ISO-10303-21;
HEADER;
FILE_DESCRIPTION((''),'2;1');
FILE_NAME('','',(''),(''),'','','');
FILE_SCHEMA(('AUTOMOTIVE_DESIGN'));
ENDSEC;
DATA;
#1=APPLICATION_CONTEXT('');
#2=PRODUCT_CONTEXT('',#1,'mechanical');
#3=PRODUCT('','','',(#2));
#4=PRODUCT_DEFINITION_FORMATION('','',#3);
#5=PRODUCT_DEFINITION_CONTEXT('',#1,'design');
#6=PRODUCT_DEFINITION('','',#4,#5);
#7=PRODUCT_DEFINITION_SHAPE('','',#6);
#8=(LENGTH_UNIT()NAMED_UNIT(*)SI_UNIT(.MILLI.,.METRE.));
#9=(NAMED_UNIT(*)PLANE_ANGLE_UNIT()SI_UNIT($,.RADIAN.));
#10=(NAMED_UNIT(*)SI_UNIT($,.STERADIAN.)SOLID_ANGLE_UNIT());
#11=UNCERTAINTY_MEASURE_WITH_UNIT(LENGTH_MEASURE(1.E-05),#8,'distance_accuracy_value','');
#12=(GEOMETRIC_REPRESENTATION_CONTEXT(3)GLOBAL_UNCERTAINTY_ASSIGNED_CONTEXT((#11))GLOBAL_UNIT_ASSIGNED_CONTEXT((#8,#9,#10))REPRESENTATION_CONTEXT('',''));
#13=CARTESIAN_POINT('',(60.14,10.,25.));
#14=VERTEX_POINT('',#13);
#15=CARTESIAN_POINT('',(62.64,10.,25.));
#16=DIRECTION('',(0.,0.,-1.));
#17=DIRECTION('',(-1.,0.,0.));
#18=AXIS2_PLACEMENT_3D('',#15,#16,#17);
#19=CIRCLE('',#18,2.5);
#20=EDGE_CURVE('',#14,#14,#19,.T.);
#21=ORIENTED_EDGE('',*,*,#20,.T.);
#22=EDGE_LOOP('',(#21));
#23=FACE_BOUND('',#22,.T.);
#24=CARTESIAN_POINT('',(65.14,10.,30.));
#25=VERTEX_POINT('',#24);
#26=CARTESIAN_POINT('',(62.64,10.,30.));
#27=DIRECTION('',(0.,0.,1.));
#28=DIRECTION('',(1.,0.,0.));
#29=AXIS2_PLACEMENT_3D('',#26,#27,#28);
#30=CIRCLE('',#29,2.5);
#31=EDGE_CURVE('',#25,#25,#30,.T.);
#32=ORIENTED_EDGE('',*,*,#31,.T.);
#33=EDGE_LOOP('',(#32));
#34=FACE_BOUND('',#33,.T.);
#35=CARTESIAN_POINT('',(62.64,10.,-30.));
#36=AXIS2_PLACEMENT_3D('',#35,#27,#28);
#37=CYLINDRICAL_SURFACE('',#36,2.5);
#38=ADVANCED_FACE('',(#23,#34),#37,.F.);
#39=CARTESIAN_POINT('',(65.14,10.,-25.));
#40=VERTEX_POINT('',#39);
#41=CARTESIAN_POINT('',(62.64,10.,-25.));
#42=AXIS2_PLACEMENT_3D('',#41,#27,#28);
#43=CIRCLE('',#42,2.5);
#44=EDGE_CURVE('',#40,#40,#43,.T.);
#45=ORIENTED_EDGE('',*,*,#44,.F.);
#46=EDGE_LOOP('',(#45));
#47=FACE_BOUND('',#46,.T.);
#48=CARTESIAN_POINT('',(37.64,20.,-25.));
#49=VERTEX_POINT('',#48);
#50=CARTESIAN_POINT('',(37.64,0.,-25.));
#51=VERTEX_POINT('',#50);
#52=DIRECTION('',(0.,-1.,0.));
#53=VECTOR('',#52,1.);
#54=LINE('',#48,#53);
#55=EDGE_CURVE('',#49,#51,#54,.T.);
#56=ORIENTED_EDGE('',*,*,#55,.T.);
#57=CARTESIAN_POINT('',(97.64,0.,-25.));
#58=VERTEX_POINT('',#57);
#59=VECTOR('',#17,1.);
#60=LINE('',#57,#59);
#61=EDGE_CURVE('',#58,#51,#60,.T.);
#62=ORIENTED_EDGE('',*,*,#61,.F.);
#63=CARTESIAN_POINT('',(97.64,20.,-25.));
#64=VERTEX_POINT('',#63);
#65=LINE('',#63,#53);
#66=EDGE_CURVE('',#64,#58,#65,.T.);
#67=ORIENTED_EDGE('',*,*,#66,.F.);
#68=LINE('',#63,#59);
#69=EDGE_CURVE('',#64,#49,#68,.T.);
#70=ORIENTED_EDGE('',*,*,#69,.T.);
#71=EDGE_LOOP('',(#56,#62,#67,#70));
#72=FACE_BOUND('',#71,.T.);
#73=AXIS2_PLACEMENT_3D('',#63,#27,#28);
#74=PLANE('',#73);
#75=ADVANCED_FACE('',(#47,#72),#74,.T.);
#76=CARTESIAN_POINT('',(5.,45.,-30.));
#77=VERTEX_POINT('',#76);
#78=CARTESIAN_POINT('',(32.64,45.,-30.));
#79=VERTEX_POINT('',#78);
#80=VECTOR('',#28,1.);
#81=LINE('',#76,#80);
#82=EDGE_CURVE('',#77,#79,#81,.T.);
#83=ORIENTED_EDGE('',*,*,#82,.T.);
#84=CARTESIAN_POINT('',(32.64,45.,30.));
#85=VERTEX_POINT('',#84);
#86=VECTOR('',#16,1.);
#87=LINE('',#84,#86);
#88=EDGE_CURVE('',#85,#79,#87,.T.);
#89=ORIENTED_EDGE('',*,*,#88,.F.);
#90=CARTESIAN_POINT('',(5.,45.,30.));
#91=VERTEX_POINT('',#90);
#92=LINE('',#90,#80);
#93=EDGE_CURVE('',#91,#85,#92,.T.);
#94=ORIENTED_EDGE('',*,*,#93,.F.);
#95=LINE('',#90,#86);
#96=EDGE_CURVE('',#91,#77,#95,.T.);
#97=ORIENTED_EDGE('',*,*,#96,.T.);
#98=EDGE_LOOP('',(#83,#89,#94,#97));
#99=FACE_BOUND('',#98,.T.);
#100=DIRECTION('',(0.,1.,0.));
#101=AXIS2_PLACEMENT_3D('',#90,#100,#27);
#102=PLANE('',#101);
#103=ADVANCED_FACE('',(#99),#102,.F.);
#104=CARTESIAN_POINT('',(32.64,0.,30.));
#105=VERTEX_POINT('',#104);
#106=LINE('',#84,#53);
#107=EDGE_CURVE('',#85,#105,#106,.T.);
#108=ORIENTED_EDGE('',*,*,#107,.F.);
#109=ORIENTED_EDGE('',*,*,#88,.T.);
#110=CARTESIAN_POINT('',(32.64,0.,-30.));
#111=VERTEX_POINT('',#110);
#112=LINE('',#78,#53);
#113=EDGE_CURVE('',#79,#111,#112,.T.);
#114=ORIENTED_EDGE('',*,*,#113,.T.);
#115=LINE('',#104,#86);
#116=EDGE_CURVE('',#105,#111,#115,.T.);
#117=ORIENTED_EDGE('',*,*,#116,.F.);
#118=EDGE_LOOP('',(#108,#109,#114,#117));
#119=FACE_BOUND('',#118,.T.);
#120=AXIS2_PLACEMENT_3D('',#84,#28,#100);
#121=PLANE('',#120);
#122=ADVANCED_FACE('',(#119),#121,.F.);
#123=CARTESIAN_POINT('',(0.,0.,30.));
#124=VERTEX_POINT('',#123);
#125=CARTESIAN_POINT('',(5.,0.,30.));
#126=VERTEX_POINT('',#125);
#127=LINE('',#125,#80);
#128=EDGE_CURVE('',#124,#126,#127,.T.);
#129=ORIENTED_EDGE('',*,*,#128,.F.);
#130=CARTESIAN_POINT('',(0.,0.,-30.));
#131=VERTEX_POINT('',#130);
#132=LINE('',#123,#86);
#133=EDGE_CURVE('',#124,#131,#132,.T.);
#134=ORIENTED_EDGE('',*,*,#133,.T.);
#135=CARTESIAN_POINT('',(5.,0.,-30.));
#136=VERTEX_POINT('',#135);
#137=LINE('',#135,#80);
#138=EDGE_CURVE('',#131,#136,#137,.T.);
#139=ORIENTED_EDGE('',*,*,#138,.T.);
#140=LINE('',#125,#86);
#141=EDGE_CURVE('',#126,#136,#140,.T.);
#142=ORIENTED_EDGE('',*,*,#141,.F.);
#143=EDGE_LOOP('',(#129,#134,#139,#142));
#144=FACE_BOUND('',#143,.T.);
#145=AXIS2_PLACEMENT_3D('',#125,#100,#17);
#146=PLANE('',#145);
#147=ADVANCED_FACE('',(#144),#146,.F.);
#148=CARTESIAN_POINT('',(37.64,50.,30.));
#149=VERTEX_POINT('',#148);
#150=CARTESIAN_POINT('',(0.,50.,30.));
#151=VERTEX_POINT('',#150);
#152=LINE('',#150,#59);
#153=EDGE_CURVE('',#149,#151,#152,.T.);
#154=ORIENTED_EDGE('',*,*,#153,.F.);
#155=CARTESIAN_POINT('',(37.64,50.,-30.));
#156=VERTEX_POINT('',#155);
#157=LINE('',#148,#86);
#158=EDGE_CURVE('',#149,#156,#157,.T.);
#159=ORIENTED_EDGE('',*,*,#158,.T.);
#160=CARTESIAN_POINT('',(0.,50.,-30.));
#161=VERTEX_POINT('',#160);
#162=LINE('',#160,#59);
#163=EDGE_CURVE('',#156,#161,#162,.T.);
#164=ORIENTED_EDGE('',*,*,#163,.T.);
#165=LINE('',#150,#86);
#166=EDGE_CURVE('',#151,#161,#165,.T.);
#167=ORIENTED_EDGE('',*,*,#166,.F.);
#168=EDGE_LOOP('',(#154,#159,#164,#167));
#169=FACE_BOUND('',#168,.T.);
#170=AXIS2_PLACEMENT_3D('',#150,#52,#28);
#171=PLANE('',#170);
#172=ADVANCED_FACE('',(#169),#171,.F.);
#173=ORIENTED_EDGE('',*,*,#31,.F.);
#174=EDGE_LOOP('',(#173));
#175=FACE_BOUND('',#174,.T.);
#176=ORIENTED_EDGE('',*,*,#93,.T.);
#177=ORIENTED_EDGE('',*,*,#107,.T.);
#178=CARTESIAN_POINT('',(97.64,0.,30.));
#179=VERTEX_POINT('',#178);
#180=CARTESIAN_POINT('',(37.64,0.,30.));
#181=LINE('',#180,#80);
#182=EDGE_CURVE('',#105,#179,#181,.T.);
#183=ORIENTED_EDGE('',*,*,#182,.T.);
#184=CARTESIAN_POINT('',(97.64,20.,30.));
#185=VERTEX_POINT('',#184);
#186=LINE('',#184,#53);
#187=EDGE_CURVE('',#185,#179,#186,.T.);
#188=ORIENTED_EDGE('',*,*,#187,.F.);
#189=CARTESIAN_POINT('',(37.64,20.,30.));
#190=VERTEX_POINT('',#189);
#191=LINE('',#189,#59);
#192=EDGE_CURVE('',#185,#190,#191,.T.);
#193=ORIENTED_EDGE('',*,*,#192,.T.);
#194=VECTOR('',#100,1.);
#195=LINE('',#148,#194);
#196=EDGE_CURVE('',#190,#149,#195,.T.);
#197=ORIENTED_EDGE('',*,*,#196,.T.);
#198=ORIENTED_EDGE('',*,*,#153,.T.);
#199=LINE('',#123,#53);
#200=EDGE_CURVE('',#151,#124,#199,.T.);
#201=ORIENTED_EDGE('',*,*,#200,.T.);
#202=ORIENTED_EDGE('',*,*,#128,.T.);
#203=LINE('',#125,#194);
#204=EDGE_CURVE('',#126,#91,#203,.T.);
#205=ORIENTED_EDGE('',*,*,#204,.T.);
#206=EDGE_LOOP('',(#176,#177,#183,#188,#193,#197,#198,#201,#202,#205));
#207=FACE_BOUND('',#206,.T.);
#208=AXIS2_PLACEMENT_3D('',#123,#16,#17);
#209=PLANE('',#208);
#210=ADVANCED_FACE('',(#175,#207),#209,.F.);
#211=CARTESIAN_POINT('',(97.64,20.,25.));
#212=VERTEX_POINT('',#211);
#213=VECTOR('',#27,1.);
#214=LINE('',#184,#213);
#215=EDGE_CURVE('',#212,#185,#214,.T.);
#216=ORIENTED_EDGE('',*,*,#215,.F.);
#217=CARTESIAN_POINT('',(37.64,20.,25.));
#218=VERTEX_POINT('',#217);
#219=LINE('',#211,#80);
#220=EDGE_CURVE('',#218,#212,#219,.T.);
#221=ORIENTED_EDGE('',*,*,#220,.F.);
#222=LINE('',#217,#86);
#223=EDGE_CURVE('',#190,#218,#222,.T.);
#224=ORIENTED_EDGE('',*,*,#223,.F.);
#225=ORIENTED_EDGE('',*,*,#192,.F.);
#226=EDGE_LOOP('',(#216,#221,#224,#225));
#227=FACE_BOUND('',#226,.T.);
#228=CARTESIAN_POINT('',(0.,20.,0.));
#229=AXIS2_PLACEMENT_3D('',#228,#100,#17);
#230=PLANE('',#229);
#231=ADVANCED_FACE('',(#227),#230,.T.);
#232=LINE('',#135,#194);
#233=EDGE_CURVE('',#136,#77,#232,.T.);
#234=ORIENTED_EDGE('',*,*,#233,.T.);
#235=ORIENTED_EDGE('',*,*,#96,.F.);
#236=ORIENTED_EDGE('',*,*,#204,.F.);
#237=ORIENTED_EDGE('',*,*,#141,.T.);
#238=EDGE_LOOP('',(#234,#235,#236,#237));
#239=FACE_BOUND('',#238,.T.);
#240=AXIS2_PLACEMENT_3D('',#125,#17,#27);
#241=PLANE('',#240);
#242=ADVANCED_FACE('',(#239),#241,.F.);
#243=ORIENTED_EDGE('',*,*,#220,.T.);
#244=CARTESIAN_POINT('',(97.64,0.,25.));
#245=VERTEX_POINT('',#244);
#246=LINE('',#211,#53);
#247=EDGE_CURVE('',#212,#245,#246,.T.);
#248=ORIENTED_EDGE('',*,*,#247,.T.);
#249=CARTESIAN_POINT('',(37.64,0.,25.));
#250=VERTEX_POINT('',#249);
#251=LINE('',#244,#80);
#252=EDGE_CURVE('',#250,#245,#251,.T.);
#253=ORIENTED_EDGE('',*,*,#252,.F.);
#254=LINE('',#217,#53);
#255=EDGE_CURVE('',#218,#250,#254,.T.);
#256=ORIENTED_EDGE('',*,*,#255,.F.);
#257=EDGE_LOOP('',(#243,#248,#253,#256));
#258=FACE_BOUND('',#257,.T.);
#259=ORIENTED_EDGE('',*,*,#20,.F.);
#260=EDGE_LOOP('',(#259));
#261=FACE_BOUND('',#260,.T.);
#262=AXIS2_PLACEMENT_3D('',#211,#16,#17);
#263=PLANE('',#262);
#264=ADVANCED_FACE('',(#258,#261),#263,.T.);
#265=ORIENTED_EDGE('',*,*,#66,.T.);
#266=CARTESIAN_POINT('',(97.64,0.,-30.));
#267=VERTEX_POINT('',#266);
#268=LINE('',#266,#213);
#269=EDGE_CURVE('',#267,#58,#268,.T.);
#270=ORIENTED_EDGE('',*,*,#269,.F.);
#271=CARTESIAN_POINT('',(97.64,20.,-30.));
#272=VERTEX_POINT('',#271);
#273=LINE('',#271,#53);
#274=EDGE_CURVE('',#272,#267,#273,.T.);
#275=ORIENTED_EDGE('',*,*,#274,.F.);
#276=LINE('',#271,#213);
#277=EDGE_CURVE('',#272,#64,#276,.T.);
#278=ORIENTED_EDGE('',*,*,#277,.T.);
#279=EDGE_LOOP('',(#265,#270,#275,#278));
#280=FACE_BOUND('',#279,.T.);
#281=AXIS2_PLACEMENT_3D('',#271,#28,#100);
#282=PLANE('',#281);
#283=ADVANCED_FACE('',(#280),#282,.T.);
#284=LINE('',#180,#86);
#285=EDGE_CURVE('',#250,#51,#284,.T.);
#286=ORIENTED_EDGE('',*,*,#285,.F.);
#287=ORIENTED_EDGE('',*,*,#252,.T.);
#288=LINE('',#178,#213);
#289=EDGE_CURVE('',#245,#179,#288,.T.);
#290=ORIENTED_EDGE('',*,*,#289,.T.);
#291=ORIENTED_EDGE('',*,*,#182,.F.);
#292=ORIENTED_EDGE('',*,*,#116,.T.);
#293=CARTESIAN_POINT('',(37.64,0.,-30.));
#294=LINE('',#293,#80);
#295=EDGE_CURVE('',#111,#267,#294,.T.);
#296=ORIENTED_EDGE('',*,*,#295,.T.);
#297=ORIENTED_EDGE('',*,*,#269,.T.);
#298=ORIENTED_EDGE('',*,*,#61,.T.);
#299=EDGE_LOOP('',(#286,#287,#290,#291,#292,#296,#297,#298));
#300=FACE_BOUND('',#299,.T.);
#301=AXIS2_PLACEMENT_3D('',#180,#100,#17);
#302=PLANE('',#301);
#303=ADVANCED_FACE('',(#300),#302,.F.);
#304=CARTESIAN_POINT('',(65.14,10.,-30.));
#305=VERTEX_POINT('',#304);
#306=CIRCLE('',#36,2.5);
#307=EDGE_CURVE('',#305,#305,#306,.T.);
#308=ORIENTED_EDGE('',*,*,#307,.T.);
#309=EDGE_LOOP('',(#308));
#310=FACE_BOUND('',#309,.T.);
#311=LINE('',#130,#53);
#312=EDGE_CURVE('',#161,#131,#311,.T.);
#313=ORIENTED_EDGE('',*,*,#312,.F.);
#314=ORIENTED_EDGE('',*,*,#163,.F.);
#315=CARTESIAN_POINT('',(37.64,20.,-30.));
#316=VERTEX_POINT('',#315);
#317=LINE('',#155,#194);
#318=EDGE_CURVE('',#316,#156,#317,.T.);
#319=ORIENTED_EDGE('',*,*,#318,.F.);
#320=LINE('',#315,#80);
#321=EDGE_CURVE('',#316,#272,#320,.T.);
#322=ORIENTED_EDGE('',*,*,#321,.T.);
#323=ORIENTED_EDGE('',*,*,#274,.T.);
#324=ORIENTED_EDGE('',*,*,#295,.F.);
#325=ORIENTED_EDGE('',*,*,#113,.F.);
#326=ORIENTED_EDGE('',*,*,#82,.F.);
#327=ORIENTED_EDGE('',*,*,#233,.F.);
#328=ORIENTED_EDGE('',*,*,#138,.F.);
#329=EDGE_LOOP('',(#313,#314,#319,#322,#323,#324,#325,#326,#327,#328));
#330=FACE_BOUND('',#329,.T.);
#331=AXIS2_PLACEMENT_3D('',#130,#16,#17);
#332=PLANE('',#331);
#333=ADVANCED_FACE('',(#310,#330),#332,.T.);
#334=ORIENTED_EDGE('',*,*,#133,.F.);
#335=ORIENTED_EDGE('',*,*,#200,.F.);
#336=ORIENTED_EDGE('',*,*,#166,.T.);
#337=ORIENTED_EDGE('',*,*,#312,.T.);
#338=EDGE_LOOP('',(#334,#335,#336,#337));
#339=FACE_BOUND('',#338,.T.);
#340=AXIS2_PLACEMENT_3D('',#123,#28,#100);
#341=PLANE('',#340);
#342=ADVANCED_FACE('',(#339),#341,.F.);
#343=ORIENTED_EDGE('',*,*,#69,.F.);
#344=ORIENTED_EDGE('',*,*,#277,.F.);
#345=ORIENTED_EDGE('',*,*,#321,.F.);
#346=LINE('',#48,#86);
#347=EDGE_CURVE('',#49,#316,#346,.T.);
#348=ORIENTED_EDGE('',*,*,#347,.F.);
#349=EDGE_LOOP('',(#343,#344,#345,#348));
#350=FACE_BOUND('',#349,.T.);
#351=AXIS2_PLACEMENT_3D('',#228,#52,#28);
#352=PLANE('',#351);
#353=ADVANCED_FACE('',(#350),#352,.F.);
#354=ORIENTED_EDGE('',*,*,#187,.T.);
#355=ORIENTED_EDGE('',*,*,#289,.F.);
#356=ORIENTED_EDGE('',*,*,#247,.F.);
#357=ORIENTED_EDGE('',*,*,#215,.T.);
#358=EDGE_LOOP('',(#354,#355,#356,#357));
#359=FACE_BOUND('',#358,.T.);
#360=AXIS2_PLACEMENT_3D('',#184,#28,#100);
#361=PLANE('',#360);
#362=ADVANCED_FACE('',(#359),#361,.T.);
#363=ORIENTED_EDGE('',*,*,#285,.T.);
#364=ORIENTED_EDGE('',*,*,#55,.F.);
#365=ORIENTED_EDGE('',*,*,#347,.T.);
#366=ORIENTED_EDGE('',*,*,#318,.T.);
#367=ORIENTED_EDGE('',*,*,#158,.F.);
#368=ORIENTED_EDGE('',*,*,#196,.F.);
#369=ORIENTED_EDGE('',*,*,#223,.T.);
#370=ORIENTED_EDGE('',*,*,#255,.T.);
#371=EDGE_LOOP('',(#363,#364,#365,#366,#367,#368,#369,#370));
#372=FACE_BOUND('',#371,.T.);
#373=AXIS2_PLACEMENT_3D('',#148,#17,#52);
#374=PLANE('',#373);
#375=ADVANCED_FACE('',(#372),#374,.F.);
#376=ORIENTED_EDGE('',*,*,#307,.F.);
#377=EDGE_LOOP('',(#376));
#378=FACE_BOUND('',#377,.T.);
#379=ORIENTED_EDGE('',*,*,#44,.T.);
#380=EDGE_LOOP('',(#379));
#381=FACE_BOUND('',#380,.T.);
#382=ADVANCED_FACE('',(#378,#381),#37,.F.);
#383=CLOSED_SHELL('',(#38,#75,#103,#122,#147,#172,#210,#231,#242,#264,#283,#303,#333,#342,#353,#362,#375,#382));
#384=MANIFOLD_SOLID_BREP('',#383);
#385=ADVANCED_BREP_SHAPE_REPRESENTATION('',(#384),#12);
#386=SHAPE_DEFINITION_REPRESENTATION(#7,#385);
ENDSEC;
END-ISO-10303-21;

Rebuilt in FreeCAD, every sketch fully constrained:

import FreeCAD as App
import Part
import Sketcher
Q = App.Units.Quantity


def add_polygon(sketch, points):
    """Adds a closed chain of lines whose ends are joined by coincident constraints."""
    first, n = sketch.GeometryCount, len(points)
    for a, b in zip(points, points[1:] + points[:1]):
        sketch.addGeometry(Part.LineSegment(App.Vector(*a, 0), App.Vector(*b, 0)), False)
    for i in range(n):
        sketch.addConstraint(Sketcher.Constraint("Coincident", first + i, 2, first + (i + 1) % n, 1))

doc = App.newDocument("Part")
body = doc.addObject("PartDesign::Body", "Body")

sketch1 = doc.addObject("Sketcher::SketchObject", "Sketch")
body.addObject(sketch1)
sketch1.AttachmentSupport = (doc.XY_Plane, [""])
sketch1.MapMode = "FlatFace"
add_polygon(sketch1, [(0, 50), (0, 0), (5, 0), (5, 45), (33, 45), (33, 0), (38, 0), (38, 50)])
sketch1.addConstraint(Sketcher.Constraint("Vertical", 0))
sketch1.addConstraint(Sketcher.Constraint("Horizontal", 1))
sketch1.addConstraint(Sketcher.Constraint("Vertical", 2))
sketch1.addConstraint(Sketcher.Constraint("Horizontal", 3))
sketch1.addConstraint(Sketcher.Constraint("Vertical", 4))
sketch1.addConstraint(Sketcher.Constraint("Horizontal", 5))
sketch1.addConstraint(Sketcher.Constraint("Vertical", 6))
sketch1.addConstraint(Sketcher.Constraint("Horizontal", 7))
sketch1.addConstraint(Sketcher.Constraint("Coincident", 0, 2, -1, 1))
sketch1.addConstraint(Sketcher.Constraint("PointOnObject", 4, 2, -1))
sketch1.addConstraint(Sketcher.Constraint("Equal", 1, 5))
sketch1.addConstraint(Sketcher.Constraint("DistanceX", 1, 1, 1, 2, Q("5 mm")))
sketch1.addConstraint(Sketcher.Constraint("DistanceY", 0, 2, 0, 1, Q("50 mm")))
sketch1.addConstraint(Sketcher.Constraint("DistanceY", 2, 1, 2, 2, Q("45 mm")))
sketch1.addConstraint(Sketcher.Constraint("DistanceX", 3, 1, 3, 2, Q("27.64 mm")))
pad1 = doc.addObject("PartDesign::Pad", "Pad")
body.addObject(pad1)
pad1.Profile = sketch1
pad1.Length = 60
pad1.Midplane = True

sketch2 = doc.addObject("Sketcher::SketchObject", "Sketch001")
body.addObject(sketch2)
sketch2.AttachmentSupport = (doc.XZ_Plane, [""])
sketch2.MapMode = "FlatFace"
add_polygon(sketch2, [(38, 30), (38, 25), (98, 25), (98, 30)])
add_polygon(sketch2, [(38, -25), (38, -30), (98, -30), (98, -25)])
sketch2.addConstraint(Sketcher.Constraint("Vertical", 0))
sketch2.addConstraint(Sketcher.Constraint("Horizontal", 1))
sketch2.addConstraint(Sketcher.Constraint("Vertical", 2))
sketch2.addConstraint(Sketcher.Constraint("Horizontal", 3))
sketch2.addConstraint(Sketcher.Constraint("Vertical", 4))
sketch2.addConstraint(Sketcher.Constraint("Horizontal", 5))
sketch2.addConstraint(Sketcher.Constraint("Vertical", 6))
sketch2.addConstraint(Sketcher.Constraint("Horizontal", 7))
sketch2.addConstraint(Sketcher.Constraint("Symmetric", 3, 2, 4, 2, -1))
sketch2.addConstraint(Sketcher.Constraint("Symmetric", 1, 2, 6, 2, -1))
sketch2.addConstraint(Sketcher.Constraint("DistanceX", 1, 1, 1, 2, Q("60 mm")))
sketch2.addConstraint(Sketcher.Constraint("DistanceY", 0, 2, 0, 1, Q("5 mm")))
sketch2.addConstraint(Sketcher.Constraint("DistanceY", -1, 1, 0, 2, Q("25 mm")))
sketch2.addConstraint(Sketcher.Constraint("DistanceX", -1, 1, 0, 2, Q("37.64 mm")))
pad2 = doc.addObject("PartDesign::Pad", "Pad001")
body.addObject(pad2)
pad2.Profile = sketch2
pad2.Length = 20
pad2.Reversed = True

sketch3 = doc.addObject("Sketcher::SketchObject", "Sketch002")
body.addObject(sketch3)
sketch3.AttachmentSupport = (doc.XY_Plane, [""])
sketch3.MapMode = "FlatFace"
sketch3.AttachmentOffset = App.Placement(App.Vector(0, 0, 30), App.Rotation())
sketch3.addGeometry(Part.Circle(App.Vector(62.6, 10, 0), App.Vector(0, 0, 1), 2.5), False)
sketch3.addConstraint(Sketcher.Constraint("Diameter", 0, Q("5 mm")))
sketch3.addConstraint(Sketcher.Constraint("DistanceY", -1, 1, 0, 3, Q("10 mm")))
sketch3.addConstraint(Sketcher.Constraint("DistanceX", -1, 1, 0, 3, Q("62.64 mm")))
pocket1 = doc.addObject("PartDesign::Pocket", "Pocket")
body.addObject(pocket1)
pocket1.Profile = sketch3
pocket1.Type = "ThroughAll"

doc.recompute()
